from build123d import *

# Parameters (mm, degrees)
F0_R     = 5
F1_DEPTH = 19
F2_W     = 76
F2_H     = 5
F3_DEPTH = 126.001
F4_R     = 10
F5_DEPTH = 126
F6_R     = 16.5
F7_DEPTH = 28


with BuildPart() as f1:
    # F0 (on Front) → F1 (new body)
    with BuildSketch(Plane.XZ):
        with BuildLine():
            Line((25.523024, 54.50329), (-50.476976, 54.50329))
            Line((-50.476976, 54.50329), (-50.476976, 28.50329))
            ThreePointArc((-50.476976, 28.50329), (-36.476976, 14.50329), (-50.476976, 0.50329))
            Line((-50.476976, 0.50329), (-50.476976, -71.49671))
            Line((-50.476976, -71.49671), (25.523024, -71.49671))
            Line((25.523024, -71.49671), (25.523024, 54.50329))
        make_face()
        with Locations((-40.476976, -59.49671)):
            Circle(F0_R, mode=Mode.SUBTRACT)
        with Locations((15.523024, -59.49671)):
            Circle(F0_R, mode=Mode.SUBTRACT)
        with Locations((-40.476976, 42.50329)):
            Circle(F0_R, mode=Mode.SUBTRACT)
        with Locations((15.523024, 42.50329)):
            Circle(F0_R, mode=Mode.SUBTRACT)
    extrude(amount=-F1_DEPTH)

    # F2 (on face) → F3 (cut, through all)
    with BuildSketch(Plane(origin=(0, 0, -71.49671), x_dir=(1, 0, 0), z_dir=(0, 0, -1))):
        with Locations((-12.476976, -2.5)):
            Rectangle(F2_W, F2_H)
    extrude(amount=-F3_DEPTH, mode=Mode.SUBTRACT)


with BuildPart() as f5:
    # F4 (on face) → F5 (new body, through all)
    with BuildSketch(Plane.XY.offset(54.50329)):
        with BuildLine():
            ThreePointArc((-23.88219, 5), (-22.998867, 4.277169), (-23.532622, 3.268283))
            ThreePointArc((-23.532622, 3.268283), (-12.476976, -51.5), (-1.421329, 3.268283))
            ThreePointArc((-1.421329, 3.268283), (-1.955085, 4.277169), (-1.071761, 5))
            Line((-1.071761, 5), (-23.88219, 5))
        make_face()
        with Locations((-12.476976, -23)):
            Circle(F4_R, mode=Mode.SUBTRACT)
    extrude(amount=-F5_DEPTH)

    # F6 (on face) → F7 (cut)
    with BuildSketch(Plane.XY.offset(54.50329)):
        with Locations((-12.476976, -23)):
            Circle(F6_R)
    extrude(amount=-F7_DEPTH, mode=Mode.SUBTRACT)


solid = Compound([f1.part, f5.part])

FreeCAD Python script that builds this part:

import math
import FreeCAD as App
import Part
import Sketcher
from FreeCAD import Vector
Q = App.Units.Quantity

doc = App.newDocument("Part")
body = doc.addObject("PartDesign::Body", "Body")

# Sketch on XZ plane
sketch1 = doc.addObject("Sketcher::SketchObject", "Sketch")
body.addObject(sketch1)
sketch1.AttachmentSupport = (doc.XZ_Plane, [""])
sketch1.MapMode = "FlatFace"
sketch1.addGeometry(Part.LineSegment(Vector(26, 55, 0), Vector(-50, 55, 0)), False)
sketch1.addGeometry(Part.LineSegment(Vector(-50, 55, 0), Vector(-50, 29, 0)), False)
sketch1.addGeometry(Part.ArcOfCircle(Part.Circle(Vector(-50, 15, 0), Vector(0, 0, 1), 14), math.radians(-90), math.radians(90)), False)
sketch1.addGeometry(Part.LineSegment(Vector(-50, 1, 0), Vector(-50, -71, 0)), False)
sketch1.addGeometry(Part.LineSegment(Vector(-50, -71, 0), Vector(26, -71, 0)), False)
sketch1.addGeometry(Part.LineSegment(Vector(26, -71, 0), Vector(26, 55, 0)), False)
sketch1.addGeometry(Part.Circle(Vector(-40, -59, 0), Vector(0, 0, 1), 5), False)
sketch1.addGeometry(Part.Circle(Vector(16, -59, 0), Vector(0, 0, 1), 5), False)
sketch1.addGeometry(Part.Circle(Vector(-40, 43, 0), Vector(0, 0, 1), 5), False)
sketch1.addGeometry(Part.Circle(Vector(16, 43, 0), Vector(0, 0, 1), 5), False)
sketch1.addConstraint(Sketcher.Constraint("Coincident", 0, 2, 1, 1))
sketch1.addConstraint(Sketcher.Constraint("Coincident", 1, 2, 2, 2))
sketch1.addConstraint(Sketcher.Constraint("Coincident", 2, 1, 3, 1))
sketch1.addConstraint(Sketcher.Constraint("Coincident", 3, 2, 4, 1))
sketch1.addConstraint(Sketcher.Constraint("Coincident", 4, 2, 5, 1))
sketch1.addConstraint(Sketcher.Constraint("Coincident", 5, 2, 0, 1))
sketch1.addConstraint(Sketcher.Constraint("Horizontal", 0))
sketch1.addConstraint(Sketcher.Constraint("Vertical", 1))
sketch1.addConstraint(Sketcher.Constraint("Vertical", 3))
sketch1.addConstraint(Sketcher.Constraint("Horizontal", 4))
sketch1.addConstraint(Sketcher.Constraint("Vertical", 5))
sketch1.addConstraint(Sketcher.Constraint("Equal", 6, 7))
sketch1.addConstraint(Sketcher.Constraint("Equal", 7, 8))
sketch1.addConstraint(Sketcher.Constraint("Equal", 8, 9))
sketch1.addConstraint(Sketcher.Constraint("Horizontal", 6, 3, 7, 3))
sketch1.addConstraint(Sketcher.Constraint("Horizontal", 8, 3, 9, 3))
sketch1.addConstraint(Sketcher.Constraint("Vertical", 6, 3, 8, 3))
sketch1.addConstraint(Sketcher.Constraint("Vertical", 7, 3, 9, 3))
sketch1.addConstraint(Sketcher.Constraint("Vertical", 2, 3, 0, 2))
sketch1.addConstraint(Sketcher.Constraint("Vertical", 1, 2, 2, 1))
sketch1.addConstraint(Sketcher.Constraint("Diameter", 6, Q("10 mm")))
sketch1.addConstraint(Sketcher.Constraint("Radius", 2, Q("14 mm")))
sketch1.addConstraint(Sketcher.Constraint("DistanceX", 0, 2, 0, 1, Q("76 mm")))
sketch1.addConstraint(Sketcher.Constraint("DistanceY", 1, 2, 1, 1, Q("26 mm")))
sketch1.addConstraint(Sketcher.Constraint("DistanceY", 3, 2, 3, 1, Q("72 mm")))
sketch1.addConstraint(Sketcher.Constraint("DistanceX", 2, 3, 6, 3, Q("10 mm")))
sketch1.addConstraint(Sketcher.Constraint("DistanceY", 6, 3, 2, 3, Q("74 mm")))
sketch1.addConstraint(Sketcher.Constraint("DistanceX", 6, 3, 7, 3, Q("56 mm")))
sketch1.addConstraint(Sketcher.Constraint("DistanceY", 2, 3, 8, 3, Q("28 mm")))
sketch1.addConstraint(Sketcher.Constraint("DistanceY", -1, 1, 2, 3, Q("14.50329 mm")))
sketch1.addConstraint(Sketcher.Constraint("DistanceX", 2, 3, -1, 1, Q("50.476976 mm")))
pad1 = doc.addObject("PartDesign::Pad", "Pad")
body.addObject(pad1)
pad1.Profile = sketch1
pad1.Length = 19
pad1.Reversed = True

# Sketch on XY plane
sketch2 = doc.addObject("Sketcher::SketchObject", "Sketch001")
body.addObject(sketch2)
sketch2.AttachmentSupport = (doc.XY_Plane, [""])
sketch2.MapMode = "FlatFace"
sketch2.AttachmentOffset = App.Placement(Vector(0, 0, -71.49671), App.Rotation())
sketch2.addGeometry(Part.LineSegment(Vector(-50, 0, 0), Vector(-50, 5, 0)), False)
sketch2.addGeometry(Part.LineSegment(Vector(-50, 5, 0), Vector(26, 5, 0)), False)
sketch2.addGeometry(Part.LineSegment(Vector(26, 5, 0), Vector(26, 0, 0)), False)
sketch2.addGeometry(Part.LineSegment(Vector(26, 0, 0), Vector(-50, 0, 0)), False)
sketch2.addConstraint(Sketcher.Constraint("Coincident", 0, 2, 1, 1))
sketch2.addConstraint(Sketcher.Constraint("Coincident", 1, 2, 2, 1))
sketch2.addConstraint(Sketcher.Constraint("Coincident", 2, 2, 3, 1))
sketch2.addConstraint(Sketcher.Constraint("Coincident", 3, 2, 0, 1))
sketch2.addConstraint(Sketcher.Constraint("Vertical", 0))
sketch2.addConstraint(Sketcher.Constraint("Horizontal", 1))
sketch2.addConstraint(Sketcher.Constraint("Vertical", 2))
sketch2.addConstraint(Sketcher.Constraint("Horizontal", 3))
sketch2.addConstraint(Sketcher.Constraint("PointOnObject", 2, 2, -1))
sketch2.addConstraint(Sketcher.Constraint("DistanceX", 1, 1, 1, 2, Q("76 mm")))
sketch2.addConstraint(Sketcher.Constraint("DistanceY", 0, 1, 0, 2, Q("5 mm")))
sketch2.addConstraint(Sketcher.Constraint("DistanceX", 0, 2, -1, 1, Q("50.476976 mm")))
pocket1 = doc.addObject("PartDesign::Pocket", "Pocket")
body.addObject(pocket1)
pocket1.Profile = sketch2
pocket1.Type = "ThroughAll"
pocket1.Reversed = True
body2 = doc.addObject("PartDesign::Body", "Body001")

# Sketch on XY plane
sketch3 = doc.addObject("Sketcher::SketchObject", "Sketch002")
body2.addObject(sketch3)
sketch3.AttachmentSupport = (doc.getObject("XY_Plane001"), [""])
sketch3.MapMode = "FlatFace"
sketch3.AttachmentOffset = App.Placement(Vector(0, 0, 54.50329), App.Rotation())
sketch3.addGeometry(Part.ArcOfCircle(Part.Circle(Vector(-23.9, 4.1, 0), Vector(0, 0, 1), 0.9), math.radians(-67), math.radians(90)), False)
sketch3.addGeometry(Part.ArcOfCircle(Part.Circle(Vector(-12.5, -23, 0), Vector(0, 0, 1), 28.5), math.radians(113), math.radians(427)), False)
sketch3.addGeometry(Part.ArcOfCircle(Part.Circle(Vector(-1.1, 4.1, 0), Vector(0, 0, 1), 0.9), math.radians(90), math.radians(247)), False)
sketch3.addGeometry(Part.LineSegment(Vector(-1.1, 5, 0), Vector(-23.9, 5, 0)), False)
sketch3.addGeometry(Part.Circle(Vector(-12.5, -23, 0), Vector(0, 0, 1), 10), False)
sketch3.addConstraint(Sketcher.Constraint("Tangent", 0, 1, 1, 1))
sketch3.addConstraint(Sketcher.Constraint("Tangent", 1, 2, 2, 2))
sketch3.addConstraint(Sketcher.Constraint("Tangent", 2, 1, 3, 1))
sketch3.addConstraint(Sketcher.Constraint("Tangent", 3, 2, 0, 2))
sketch3.addConstraint(Sketcher.Constraint("Horizontal", 3))
sketch3.addConstraint(Sketcher.Constraint("Coincident", 4, 3, 1, 3))
sketch3.addConstraint(Sketcher.Constraint("Equal", 0, 2))
sketch3.addConstraint(Sketcher.Constraint("Diameter", 4, Q("20 mm")))
sketch3.addConstraint(Sketcher.Constraint("Radius", 1, Q("28.5 mm")))
sketch3.addConstraint(Sketcher.Constraint("DistanceY", 1, 3, -1, 1, Q("23 mm")))
sketch3.addConstraint(Sketcher.Constraint("DistanceY", -1, 1, 2, 1, Q("5 mm")))
sketch3.addConstraint(Sketcher.Constraint("Radius", 0, Q("0.901141 mm")))
sketch3.addConstraint(Sketcher.Constraint("DistanceX", 0, 3, -1, 1, Q("23.882191 mm")))
pad2 = doc.addObject("PartDesign::Pad", "Pad001")
body2.addObject(pad2)
pad2.Profile = sketch3
pad2.Length = 126
pad2.Reversed = True

# Sketch on XY plane
sketch4 = doc.addObject("Sketcher::SketchObject", "Sketch003")
body2.addObject(sketch4)
sketch4.AttachmentSupport = (doc.getObject("XY_Plane001"), [""])
sketch4.MapMode = "FlatFace"
sketch4.AttachmentOffset = App.Placement(Vector(0, 0, 54.50329), App.Rotation())
sketch4.addGeometry(Part.Circle(Vector(-12, -23, 0), Vector(0, 0, 1), 16), False)
sketch4.addConstraint(Sketcher.Constraint("Diameter", 0, Q("33 mm")))
sketch4.addConstraint(Sketcher.Constraint("DistanceY", 0, 3, -1, 1, Q("23 mm")))
sketch4.addConstraint(Sketcher.Constraint("DistanceX", 0, 3, -1, 1, Q("12.476976 mm")))
pocket2 = doc.addObject("PartDesign::Pocket", "Pocket001")
body2.addObject(pocket2)
pocket2.Profile = sketch4
pocket2.Length = 28

doc.recompute()
